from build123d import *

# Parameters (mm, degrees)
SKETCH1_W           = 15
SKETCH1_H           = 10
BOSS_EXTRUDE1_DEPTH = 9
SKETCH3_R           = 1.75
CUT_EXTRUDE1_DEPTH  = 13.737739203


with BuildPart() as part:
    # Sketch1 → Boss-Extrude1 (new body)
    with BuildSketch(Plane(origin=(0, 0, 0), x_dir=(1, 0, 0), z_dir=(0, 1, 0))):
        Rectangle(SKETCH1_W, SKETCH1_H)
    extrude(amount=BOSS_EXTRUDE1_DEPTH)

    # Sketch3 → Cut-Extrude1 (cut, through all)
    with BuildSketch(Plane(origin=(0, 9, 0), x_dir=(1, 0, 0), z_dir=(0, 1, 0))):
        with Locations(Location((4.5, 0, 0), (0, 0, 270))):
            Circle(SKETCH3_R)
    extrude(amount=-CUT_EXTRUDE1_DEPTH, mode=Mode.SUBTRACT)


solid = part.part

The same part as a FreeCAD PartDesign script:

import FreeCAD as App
import Part
import Sketcher
Q = App.Units.Quantity


def add_polygon(sketch, points):
    """Adds a closed chain of lines whose ends are joined by coincident constraints."""
    first, n = sketch.GeometryCount, len(points)
    for a, b in zip(points, points[1:] + points[:1]):
        sketch.addGeometry(Part.LineSegment(App.Vector(*a, 0), App.Vector(*b, 0)), False)
    for i in range(n):
        sketch.addConstraint(Sketcher.Constraint("Coincident", first + i, 2, first + (i + 1) % n, 1))

doc = App.newDocument("Part")
params = doc.addObject("Spreadsheet::Sheet", "Params")
for row, (alias, value) in enumerate([
    ("sketch1_width", "15 mm"),
    ("sketch1_height", "10 mm"),
    ("pad1_length", "9 mm"),
    ("sketch2_diameter", "3.5 mm"),
], start=1):
    params.set(f"A{row}", alias)
    params.set(f"B{row}", "=" + value)
    params.setAlias(f"B{row}", alias)

body = doc.addObject("PartDesign::Body", "Body")

# Sketch on XZ plane
sketch1 = body.newObject("Sketcher::SketchObject", "Sketch")
sketch1.AttachmentSupport = (doc.getObject("XZ_Plane"), [""])
sketch1.MapMode = "FlatFace"
add_polygon(sketch1, [(-7.5, -5), (-7.5, 5), (7.5, 5), (7.5, -5)])  # lines 0-3
sketch1.addConstraint([
    Sketcher.Constraint("Vertical", 0),
    Sketcher.Constraint("Horizontal", 1),
    Sketcher.Constraint("Vertical", 2),
    Sketcher.Constraint("Horizontal", 3),
    Sketcher.Constraint("Symmetric", 0, 2, 2, 2, -1, 1),
    Sketcher.Constraint("DistanceX", 1, 1, 1, 2, Q("15 mm")),
    Sketcher.Constraint("DistanceY", 0, 1, 0, 2, Q("10 mm")),
])
sketch1.setExpression("Constraints[9]", "Params.sketch1_width")
sketch1.setExpression("Constraints[10]", "Params.sketch1_height")
pad1 = body.newObject("PartDesign::Pad", "Pad")
pad1.Profile = sketch1
pad1.setExpression("Length", "Params.pad1_length")
pad1.Reversed = True

# Sketch on XZ plane
sketch2 = body.newObject("Sketcher::SketchObject", "Sketch001")
sketch2.AttachmentSupport = (doc.getObject("XZ_Plane"), [""])
sketch2.MapMode = "FlatFace"
sketch2.AttachmentOffset = App.Placement(App.Vector(0, 0, -9), App.Rotation())
sketch2.addGeometry(Part.Circle(App.Vector(4.5, 0, 0), App.Vector(0, 0, 1), 1.75), False)
sketch2.addConstraint([
    Sketcher.Constraint("PointOnObject", 0, 3, -1),
    Sketcher.Constraint("Diameter", 0, Q("3.5 mm")),
    Sketcher.Constraint("DistanceX", -1, 1, 0, 3, Q("4.5 mm")),
])
sketch2.setExpression("Constraints[1]", "Params.sketch2_diameter")
pocket1 = body.newObject("PartDesign::Pocket", "Pocket")
pocket1.Profile = sketch2
pocket1.Type = "ThroughAll"
pocket1.Reversed = True

doc.recompute()
